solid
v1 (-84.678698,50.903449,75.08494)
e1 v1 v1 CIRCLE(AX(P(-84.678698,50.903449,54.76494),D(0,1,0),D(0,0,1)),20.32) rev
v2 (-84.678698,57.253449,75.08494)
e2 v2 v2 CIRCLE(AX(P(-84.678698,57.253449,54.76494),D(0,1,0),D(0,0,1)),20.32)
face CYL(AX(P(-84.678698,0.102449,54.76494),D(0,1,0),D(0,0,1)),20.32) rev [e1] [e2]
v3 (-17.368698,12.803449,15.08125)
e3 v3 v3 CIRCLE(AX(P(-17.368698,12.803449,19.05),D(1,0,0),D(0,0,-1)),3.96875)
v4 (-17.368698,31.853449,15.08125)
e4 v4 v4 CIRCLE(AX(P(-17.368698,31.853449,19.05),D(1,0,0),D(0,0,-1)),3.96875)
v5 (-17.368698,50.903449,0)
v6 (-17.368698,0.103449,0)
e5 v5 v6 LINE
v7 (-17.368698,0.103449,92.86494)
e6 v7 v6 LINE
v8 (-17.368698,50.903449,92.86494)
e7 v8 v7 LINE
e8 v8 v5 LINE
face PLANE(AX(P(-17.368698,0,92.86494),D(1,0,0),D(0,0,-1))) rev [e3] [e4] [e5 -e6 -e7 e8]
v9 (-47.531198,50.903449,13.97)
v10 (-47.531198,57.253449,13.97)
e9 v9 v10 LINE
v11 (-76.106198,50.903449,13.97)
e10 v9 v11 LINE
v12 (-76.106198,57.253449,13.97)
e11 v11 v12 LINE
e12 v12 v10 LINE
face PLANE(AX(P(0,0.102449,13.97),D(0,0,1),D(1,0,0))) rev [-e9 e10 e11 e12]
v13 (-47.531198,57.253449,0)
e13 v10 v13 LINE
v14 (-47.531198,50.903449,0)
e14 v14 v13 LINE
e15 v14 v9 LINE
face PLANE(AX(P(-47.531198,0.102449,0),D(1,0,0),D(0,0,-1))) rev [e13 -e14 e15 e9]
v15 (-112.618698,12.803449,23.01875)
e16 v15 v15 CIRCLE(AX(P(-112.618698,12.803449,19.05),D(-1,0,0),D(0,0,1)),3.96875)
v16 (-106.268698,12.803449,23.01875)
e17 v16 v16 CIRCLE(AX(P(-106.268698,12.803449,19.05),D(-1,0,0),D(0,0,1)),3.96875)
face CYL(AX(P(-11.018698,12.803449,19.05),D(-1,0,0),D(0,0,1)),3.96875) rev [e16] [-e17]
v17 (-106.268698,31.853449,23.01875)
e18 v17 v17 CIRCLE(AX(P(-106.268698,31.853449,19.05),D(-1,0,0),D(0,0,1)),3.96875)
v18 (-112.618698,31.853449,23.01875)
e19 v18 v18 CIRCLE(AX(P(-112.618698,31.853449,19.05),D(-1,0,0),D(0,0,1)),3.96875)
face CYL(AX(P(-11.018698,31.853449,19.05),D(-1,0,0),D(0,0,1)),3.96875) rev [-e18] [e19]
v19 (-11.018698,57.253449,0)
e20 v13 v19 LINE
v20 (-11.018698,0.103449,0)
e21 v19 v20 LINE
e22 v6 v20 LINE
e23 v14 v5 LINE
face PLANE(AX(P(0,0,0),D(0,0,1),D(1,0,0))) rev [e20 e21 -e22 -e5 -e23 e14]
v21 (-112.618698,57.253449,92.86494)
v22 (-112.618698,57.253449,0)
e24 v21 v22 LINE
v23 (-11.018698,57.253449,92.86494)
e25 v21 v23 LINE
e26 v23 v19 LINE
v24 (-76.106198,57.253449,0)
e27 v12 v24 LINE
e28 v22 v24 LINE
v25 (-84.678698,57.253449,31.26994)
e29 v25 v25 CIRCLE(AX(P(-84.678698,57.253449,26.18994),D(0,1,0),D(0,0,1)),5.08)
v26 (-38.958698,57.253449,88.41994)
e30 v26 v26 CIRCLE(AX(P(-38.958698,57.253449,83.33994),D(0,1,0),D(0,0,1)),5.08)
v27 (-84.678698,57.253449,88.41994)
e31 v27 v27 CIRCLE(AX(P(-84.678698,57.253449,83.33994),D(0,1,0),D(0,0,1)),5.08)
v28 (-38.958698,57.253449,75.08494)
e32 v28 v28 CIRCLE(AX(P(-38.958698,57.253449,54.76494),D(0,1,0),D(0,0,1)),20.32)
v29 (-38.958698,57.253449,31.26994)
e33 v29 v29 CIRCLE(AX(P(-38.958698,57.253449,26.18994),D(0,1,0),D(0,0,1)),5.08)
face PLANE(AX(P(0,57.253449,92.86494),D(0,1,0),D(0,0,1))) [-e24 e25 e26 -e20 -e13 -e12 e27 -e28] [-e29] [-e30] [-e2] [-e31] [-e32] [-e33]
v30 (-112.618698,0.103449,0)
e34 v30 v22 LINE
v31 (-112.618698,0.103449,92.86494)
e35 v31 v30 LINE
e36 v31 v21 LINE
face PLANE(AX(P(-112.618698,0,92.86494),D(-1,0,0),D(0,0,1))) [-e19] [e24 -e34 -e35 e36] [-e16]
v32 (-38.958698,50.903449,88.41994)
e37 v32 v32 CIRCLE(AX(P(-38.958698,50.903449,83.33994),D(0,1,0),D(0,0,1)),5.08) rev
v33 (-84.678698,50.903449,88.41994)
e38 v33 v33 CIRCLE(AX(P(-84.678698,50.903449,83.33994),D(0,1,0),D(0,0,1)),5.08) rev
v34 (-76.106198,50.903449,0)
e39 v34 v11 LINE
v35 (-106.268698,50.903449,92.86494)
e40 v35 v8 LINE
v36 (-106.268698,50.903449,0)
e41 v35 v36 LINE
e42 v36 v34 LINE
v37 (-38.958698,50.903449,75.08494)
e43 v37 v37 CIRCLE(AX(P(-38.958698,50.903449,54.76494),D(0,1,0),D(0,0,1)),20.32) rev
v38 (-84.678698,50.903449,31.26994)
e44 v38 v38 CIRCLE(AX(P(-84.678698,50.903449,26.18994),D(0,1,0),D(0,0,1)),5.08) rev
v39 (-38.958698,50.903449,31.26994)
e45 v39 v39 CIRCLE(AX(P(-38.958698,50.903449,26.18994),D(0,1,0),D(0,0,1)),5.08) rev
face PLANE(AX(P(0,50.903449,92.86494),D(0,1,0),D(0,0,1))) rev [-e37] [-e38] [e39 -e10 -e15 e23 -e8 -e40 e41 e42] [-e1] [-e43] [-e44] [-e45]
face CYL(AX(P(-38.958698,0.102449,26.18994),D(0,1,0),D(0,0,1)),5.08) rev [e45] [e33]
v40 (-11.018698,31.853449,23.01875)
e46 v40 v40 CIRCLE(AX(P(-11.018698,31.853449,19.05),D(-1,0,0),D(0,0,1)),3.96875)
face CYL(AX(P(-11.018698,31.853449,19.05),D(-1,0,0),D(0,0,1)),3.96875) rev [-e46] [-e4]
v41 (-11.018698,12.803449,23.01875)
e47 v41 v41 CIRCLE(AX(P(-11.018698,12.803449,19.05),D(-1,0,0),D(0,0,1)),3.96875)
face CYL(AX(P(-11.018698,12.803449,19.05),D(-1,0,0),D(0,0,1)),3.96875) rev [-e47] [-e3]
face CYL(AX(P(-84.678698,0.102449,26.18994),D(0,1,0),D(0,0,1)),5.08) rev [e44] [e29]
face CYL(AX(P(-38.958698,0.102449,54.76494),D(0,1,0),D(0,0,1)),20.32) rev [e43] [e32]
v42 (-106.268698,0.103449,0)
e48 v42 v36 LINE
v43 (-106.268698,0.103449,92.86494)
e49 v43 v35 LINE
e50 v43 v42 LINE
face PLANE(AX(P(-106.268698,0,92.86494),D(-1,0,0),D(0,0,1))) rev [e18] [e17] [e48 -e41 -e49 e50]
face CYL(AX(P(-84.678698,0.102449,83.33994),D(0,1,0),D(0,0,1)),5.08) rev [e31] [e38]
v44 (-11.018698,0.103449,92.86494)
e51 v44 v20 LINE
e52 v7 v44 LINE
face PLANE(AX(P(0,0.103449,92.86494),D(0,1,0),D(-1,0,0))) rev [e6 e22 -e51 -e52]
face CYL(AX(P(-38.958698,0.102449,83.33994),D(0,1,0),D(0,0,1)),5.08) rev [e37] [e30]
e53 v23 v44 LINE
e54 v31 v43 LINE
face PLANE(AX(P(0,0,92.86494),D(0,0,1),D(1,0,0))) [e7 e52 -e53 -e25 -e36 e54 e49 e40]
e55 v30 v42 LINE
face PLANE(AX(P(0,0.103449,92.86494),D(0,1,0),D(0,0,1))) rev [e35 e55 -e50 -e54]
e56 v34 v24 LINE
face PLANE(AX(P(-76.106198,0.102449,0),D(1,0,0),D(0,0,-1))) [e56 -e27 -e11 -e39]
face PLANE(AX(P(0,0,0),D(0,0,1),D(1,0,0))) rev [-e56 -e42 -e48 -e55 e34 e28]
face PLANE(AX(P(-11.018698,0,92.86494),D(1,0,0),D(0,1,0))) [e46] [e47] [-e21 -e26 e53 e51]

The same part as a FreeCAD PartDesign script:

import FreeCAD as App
import Part
import Sketcher
Q = App.Units.Quantity


def add_polygon(sketch, points):
    """Adds a closed chain of lines whose ends are joined by coincident constraints."""
    first, n = sketch.GeometryCount, len(points)
    for a, b in zip(points, points[1:] + points[:1]):
        sketch.addGeometry(Part.LineSegment(App.Vector(*a, 0), App.Vector(*b, 0)), False)
    for i in range(n):
        sketch.addConstraint(Sketcher.Constraint("Coincident", first + i, 2, first + (i + 1) % n, 1))

doc = App.newDocument("Part")
body = doc.addObject("PartDesign::Body", "Body")

sketch1 = doc.addObject("Sketcher::SketchObject", "Sketch")
body.addObject(sketch1)
sketch1.AttachmentSupport = (doc.XY_Plane, [""])
sketch1.MapMode = "FlatFace"
add_polygon(sketch1, [(-113, 57), (-113, 0), (-106, 0), (-106, 51), (-17, 51), (-17, 0), (-11, 0), (-11, 57)])
sketch1.addConstraint([
    Sketcher.Constraint("Vertical", 0),
    Sketcher.Constraint("Horizontal", 1),
    Sketcher.Constraint("Vertical", 2),
    Sketcher.Constraint("Horizontal", 3),
    Sketcher.Constraint("Vertical", 4),
    Sketcher.Constraint("Horizontal", 5),
    Sketcher.Constraint("Vertical", 6),
    Sketcher.Constraint("Horizontal", 7),
    Sketcher.Constraint("Horizontal", 1, 2, 4, 2),
    Sketcher.Constraint("Equal", 1, 5),
    Sketcher.Constraint("DistanceX", 7, 2, 7, 1, Q("4 in")),
    Sketcher.Constraint("DistanceY", 2, 1, 2, 2, Q("2 in")),
    Sketcher.Constraint("DistanceX", 3, 1, 3, 2, Q("3.5 in")),
    Sketcher.Constraint("DistanceY", 0, 2, 0, 1, Q("2.25 in")),
    Sketcher.Constraint("DistanceY", -1, 1, 0, 2, 0.103449),
    Sketcher.Constraint("DistanceX", 0, 2, -1, 1, 112.618698),
])
pad1 = doc.addObject("PartDesign::Pad", "Pad")
body.addObject(pad1)
pad1.Profile = sketch1
pad1.Length = Q("3.6561 in")

sketch2 = doc.addObject("Sketcher::SketchObject", "Sketch001")
body.addObject(sketch2)
sketch2.AttachmentSupport = (doc.XZ_Plane, [""])
sketch2.MapMode = "FlatFace"
sketch2.AttachmentOffset = App.Placement(App.Vector(0, 0, -57.253449), App.Rotation())
add_polygon(sketch2, [(-48, 0), (-76, 0), (-76, 14), (-48, 14)])
sketch2.addConstraint([
    Sketcher.Constraint("Horizontal", 0),
    Sketcher.Constraint("Vertical", 1),
    Sketcher.Constraint("Horizontal", 2),
    Sketcher.Constraint("Vertical", 3),
    Sketcher.Constraint("PointOnObject", 0, 2, -1),
    Sketcher.Constraint("DistanceY", 1, 1, 1, 2, Q("0.55 in")),
    Sketcher.Constraint("DistanceX", 0, 2, 0, 1, Q("1.125 in")),
    Sketcher.Constraint("DistanceX", 0, 2, -1, 1, 76.106198),
])
pocket1 = doc.addObject("PartDesign::Pocket", "Pocket")
body.addObject(pocket1)
pocket1.Profile = sketch2
pocket1.Type = "UpToFirst"
pocket1.Reversed = True

sketch3 = doc.addObject("Sketcher::SketchObject", "Sketch002")
body.addObject(sketch3)
sketch3.AttachmentSupport = (doc.XZ_Plane, [""])
sketch3.MapMode = "FlatFace"
sketch3.AttachmentOffset = App.Placement(App.Vector(0, 0, -57.253449), App.Rotation())
sketch3.addGeometry(Part.Circle(App.Vector(-39, 26, 0), App.Vector(0, 0, 1), 5), False)
sketch3.addConstraint([
    Sketcher.Constraint("Diameter", 0, Q("0.4 in")),
    Sketcher.Constraint("DistanceY", -1, 1, 0, 3, Q("1.0311 in")),
    Sketcher.Constraint("DistanceX", 0, 3, -1, 1, 38.958698),
])
pocket2 = doc.addObject("PartDesign::Pocket", "Pocket001")
body.addObject(pocket2)
pocket2.Profile = sketch3
pocket2.Type = "UpToFirst"
pocket2.Reversed = True

sketch4 = doc.addObject("Sketcher::SketchObject", "Sketch003")
body.addObject(sketch4)
sketch4.AttachmentSupport = (doc.XZ_Plane, [""])
sketch4.MapMode = "FlatFace"
sketch4.AttachmentOffset = App.Placement(App.Vector(0, 0, -57.253449), App.Rotation())
sketch4.addGeometry(Part.Circle(App.Vector(-85, 26, 0), App.Vector(0, 0, 1), 5), False)
sketch4.addConstraint([
    Sketcher.Constraint("Diameter", 0, Q("0.4 in")),
    Sketcher.Constraint("DistanceY", -1, 1, 0, 3, Q("1.0311 in")),
    Sketcher.Constraint("DistanceX", 0, 3, -1, 1, 84.678698),
])
pocket3 = doc.addObject("PartDesign::Pocket", "Pocket002")
body.addObject(pocket3)
pocket3.Profile = sketch4
pocket3.Type = "UpToFirst"
pocket3.Reversed = True

sketch5 = doc.addObject("Sketcher::SketchObject", "Sketch004")
body.addObject(sketch5)
sketch5.AttachmentSupport = (doc.XZ_Plane, [""])
sketch5.MapMode = "FlatFace"
sketch5.AttachmentOffset = App.Placement(App.Vector(0, 0, -57.253449), App.Rotation())
sketch5.addGeometry(Part.Circle(App.Vector(-85, 83, 0), App.Vector(0, 0, 1), 5), False)
sketch5.addConstraint([
    Sketcher.Constraint("Diameter", 0, Q("0.4 in")),
    Sketcher.Constraint("DistanceY", -1, 1, 0, 3, Q("3.2811 in")),
    Sketcher.Constraint("DistanceX", 0, 3, -1, 1, 84.678698),
])
pocket4 = doc.addObject("PartDesign::Pocket", "Pocket003")
body.addObject(pocket4)
pocket4.Profile = sketch5
pocket4.Type = "UpToFirst"
pocket4.Reversed = True

sketch6 = doc.addObject("Sketcher::SketchObject", "Sketch005")
body.addObject(sketch6)
sketch6.AttachmentSupport = (doc.XZ_Plane, [""])
sketch6.MapMode = "FlatFace"
sketch6.AttachmentOffset = App.Placement(App.Vector(0, 0, -57.253449), App.Rotation())
sketch6.addGeometry(Part.Circle(App.Vector(-39, 83, 0), App.Vector(0, 0, 1), 5), False)
sketch6.addConstraint([
    Sketcher.Constraint("Diameter", 0, Q("0.4 in")),
    Sketcher.Constraint("DistanceY", -1, 1, 0, 3, Q("3.2811 in")),
    Sketcher.Constraint("DistanceX", 0, 3, -1, 1, 38.958698),
])
pocket5 = doc.addObject("PartDesign::Pocket", "Pocket004")
body.addObject(pocket5)
pocket5.Profile = sketch6
pocket5.Type = "UpToFirst"
pocket5.Reversed = True

sketch7 = doc.addObject("Sketcher::SketchObject", "Sketch006")
body.addObject(sketch7)
sketch7.AttachmentSupport = (doc.XZ_Plane, [""])
sketch7.MapMode = "FlatFace"
sketch7.AttachmentOffset = App.Placement(App.Vector(0, 0, -57.253449), App.Rotation())
sketch7.addGeometry(Part.Circle(App.Vector(-39, 55, 0), App.Vector(0, 0, 1), 20), False)
sketch7.addConstraint([
    Sketcher.Constraint("Diameter", 0, Q("1.6 in")),
    Sketcher.Constraint("DistanceY", -1, 1, 0, 3, Q("2.1561 in")),
    Sketcher.Constraint("DistanceX", 0, 3, -1, 1, 38.958698),
])
pocket6 = doc.addObject("PartDesign::Pocket", "Pocket005")
body.addObject(pocket6)
pocket6.Profile = sketch7
pocket6.Type = "UpToFirst"
pocket6.Reversed = True

sketch8 = doc.addObject("Sketcher::SketchObject", "Sketch007")
body.addObject(sketch8)
sketch8.AttachmentSupport = (doc.XZ_Plane, [""])
sketch8.MapMode = "FlatFace"
sketch8.AttachmentOffset = App.Placement(App.Vector(0, 0, -57.253449), App.Rotation())
sketch8.addGeometry(Part.Circle(App.Vector(-85, 55, 0), App.Vector(0, 0, 1), 20), False)
sketch8.addConstraint([
    Sketcher.Constraint("Diameter", 0, Q("1.6 in")),
    Sketcher.Constraint("DistanceY", -1, 1, 0, 3, Q("2.1561 in")),
    Sketcher.Constraint("DistanceX", 0, 3, -1, 1, 84.678698),
])
pocket7 = doc.addObject("PartDesign::Pocket", "Pocket006")
body.addObject(pocket7)
pocket7.Profile = sketch8
pocket7.Type = "UpToFirst"
pocket7.Reversed = True

sketch9 = doc.addObject("Sketcher::SketchObject", "Sketch008")
body.addObject(sketch9)
sketch9.AttachmentSupport = (doc.YZ_Plane, [""])
sketch9.MapMode = "FlatFace"
sketch9.AttachmentOffset = App.Placement(App.Vector(0, 0, -112.618698), App.Rotation())
sketch9.addGeometry([
    Part.Circle(App.Vector(12.8, 19.1, 0), App.Vector(0, 0, 1), 4),
    Part.Circle(App.Vector(31.9, 19.1, 0), App.Vector(0, 0, 1), 4),
], False)
sketch9.addConstraint([
    Sketcher.Constraint("Equal", 0, 1),
    Sketcher.Constraint("Horizontal", 0, 3, 1, 3),
    Sketcher.Constraint("Diameter", 0, Q("0.3125 in")),
    Sketcher.Constraint("DistanceY", -1, 1, 0, 3, Q("0.75 in")),
    Sketcher.Constraint("DistanceX", 0, 3, 1, 3, Q("0.75 in")),
    Sketcher.Constraint("DistanceX", -1, 1, 0, 3, 12.803449),
])
pocket8 = doc.addObject("PartDesign::Pocket", "Pocket007")
body.addObject(pocket8)
pocket8.Profile = sketch9
pocket8.Type = "ThroughAll"
pocket8.Reversed = True

doc.recompute()
